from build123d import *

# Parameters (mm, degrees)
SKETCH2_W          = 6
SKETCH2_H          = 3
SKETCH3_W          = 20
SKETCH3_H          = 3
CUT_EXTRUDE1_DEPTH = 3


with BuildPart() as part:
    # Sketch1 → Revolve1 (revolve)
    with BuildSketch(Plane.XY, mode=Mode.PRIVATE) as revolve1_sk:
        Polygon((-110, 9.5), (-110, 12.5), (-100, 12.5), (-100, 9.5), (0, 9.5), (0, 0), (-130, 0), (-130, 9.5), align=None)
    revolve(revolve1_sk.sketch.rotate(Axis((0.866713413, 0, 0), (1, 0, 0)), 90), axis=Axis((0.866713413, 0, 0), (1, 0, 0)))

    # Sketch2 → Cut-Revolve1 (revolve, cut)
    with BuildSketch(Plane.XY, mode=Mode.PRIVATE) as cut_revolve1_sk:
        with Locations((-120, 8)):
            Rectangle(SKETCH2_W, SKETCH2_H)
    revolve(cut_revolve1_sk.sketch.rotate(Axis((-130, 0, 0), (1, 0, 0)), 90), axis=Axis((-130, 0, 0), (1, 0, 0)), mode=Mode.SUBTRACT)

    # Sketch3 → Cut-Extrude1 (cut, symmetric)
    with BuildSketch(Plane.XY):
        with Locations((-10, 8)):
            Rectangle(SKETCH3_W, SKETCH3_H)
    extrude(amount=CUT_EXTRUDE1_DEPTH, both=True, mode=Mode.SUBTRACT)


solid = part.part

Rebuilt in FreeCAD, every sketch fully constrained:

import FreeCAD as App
import Part
import Sketcher

V = App.Vector
Q = App.Units.Quantity


def add_polygon(sketch, points):
    """Adds a closed chain of lines whose ends are joined by coincident constraints."""
    first, n = sketch.GeometryCount, len(points)
    for a, b in zip(points, points[1:] + points[:1]):
        sketch.addGeometry(Part.LineSegment(App.Vector(*a, 0), App.Vector(*b, 0)), False)
    for i in range(n):
        sketch.addConstraint(Sketcher.Constraint("Coincident", first + i, 2, first + (i + 1) % n, 1))

doc = App.newDocument("Part")
body = doc.addObject("PartDesign::Body", "Body")

# Sketch on XY plane
sketch1 = body.newObject("Sketcher::SketchObject", "Sketch")
sketch1.AttachmentSupport = (doc.getObject("XY_Plane"), [""])
sketch1.MapMode = "FlatFace"
add_polygon(sketch1, [(-110, 12.5), (-110, 9.5), (-130, 9.5), (-130, 0), (0, 0), (0, 9.5), (-100, 9.5), (-100, 12.5)])  # lines 0-7
sketch1.addConstraint([
    Sketcher.Constraint("Vertical", 0),
    Sketcher.Constraint("Horizontal", 1),
    Sketcher.Constraint("Vertical", 2),
    Sketcher.Constraint("Horizontal", 3),
    Sketcher.Constraint("Vertical", 4),
    Sketcher.Constraint("Horizontal", 5),
    Sketcher.Constraint("Vertical", 6),
    Sketcher.Constraint("Horizontal", 7),
    Sketcher.Constraint("Coincident", 3, 2, -1, 1),
    Sketcher.Constraint("Horizontal", 1, 2, 4, 2),
    Sketcher.Constraint("DistanceX", 1, 2, 1, 1, Q("20 mm")),
    Sketcher.Constraint("DistanceX", 3, 1, 3, 2, Q("130 mm")),
    Sketcher.Constraint("DistanceX", 5, 2, 5, 1, Q("100 mm")),
    Sketcher.Constraint("DistanceY", 0, 2, 0, 1, Q("3 mm")),
    Sketcher.Constraint("DistanceY", 2, 2, 2, 1, Q("9.5 mm")),
])
revolution = body.newObject("PartDesign::Revolution", "Revolution")
revolution.Profile = sketch1
revolution.ReferenceAxis = (sketch1, ["H_Axis"])
revolution.Angle = 360

# Sketch on XY plane
sketch2 = body.newObject("Sketcher::SketchObject", "Sketch001")
sketch2.AttachmentSupport = (doc.getObject("XY_Plane"), [""])
sketch2.MapMode = "FlatFace"
add_polygon(sketch2, [(-123, 9.5), (-123, 6.5), (-117, 6.5), (-117, 9.5)])  # lines 0-3
sketch2.addConstraint([
    Sketcher.Constraint("Vertical", 0),
    Sketcher.Constraint("Horizontal", 1),
    Sketcher.Constraint("Vertical", 2),
    Sketcher.Constraint("Horizontal", 3),
    Sketcher.Constraint("DistanceX", 1, 1, 1, 2, Q("6 mm")),
    Sketcher.Constraint("DistanceY", 0, 2, 0, 1, Q("3 mm")),
    Sketcher.Constraint("DistanceX", 0, 2, -1, 1, Q("123 mm")),
    Sketcher.Constraint("DistanceY", -1, 1, 0, 2, Q("6.5 mm")),
])
groove = body.newObject("PartDesign::Groove", "Groove")
groove.Profile = sketch2
groove.ReferenceAxis = (sketch2, ["H_Axis"])
groove.Angle = 360

# Sketch on XY plane
sketch3 = body.newObject("Sketcher::SketchObject", "Sketch002")
sketch3.AttachmentSupport = (doc.getObject("XY_Plane"), [""])
sketch3.MapMode = "FlatFace"
add_polygon(sketch3, [(-20, 9.5), (-20, 6.5), (0, 6.5), (0, 9.5)])  # lines 0-3
sketch3.addConstraint([
    Sketcher.Constraint("Vertical", 0),
    Sketcher.Constraint("Horizontal", 1),
    Sketcher.Constraint("Vertical", 2),
    Sketcher.Constraint("Horizontal", 3),
    Sketcher.Constraint("PointOnObject", 1, 2, -2),
    Sketcher.Constraint("DistanceX", 1, 1, 1, 2, Q("20 mm")),
    Sketcher.Constraint("DistanceY", 0, 2, 0, 1, Q("3 mm")),
    Sketcher.Constraint("DistanceY", -1, 1, 0, 2, Q("6.5 mm")),
])
pocket1 = body.newObject("PartDesign::Pocket", "Pocket")
pocket1.Profile = sketch3
pocket1.Length = 6
pocket1.Midplane = True

doc.recompute()
